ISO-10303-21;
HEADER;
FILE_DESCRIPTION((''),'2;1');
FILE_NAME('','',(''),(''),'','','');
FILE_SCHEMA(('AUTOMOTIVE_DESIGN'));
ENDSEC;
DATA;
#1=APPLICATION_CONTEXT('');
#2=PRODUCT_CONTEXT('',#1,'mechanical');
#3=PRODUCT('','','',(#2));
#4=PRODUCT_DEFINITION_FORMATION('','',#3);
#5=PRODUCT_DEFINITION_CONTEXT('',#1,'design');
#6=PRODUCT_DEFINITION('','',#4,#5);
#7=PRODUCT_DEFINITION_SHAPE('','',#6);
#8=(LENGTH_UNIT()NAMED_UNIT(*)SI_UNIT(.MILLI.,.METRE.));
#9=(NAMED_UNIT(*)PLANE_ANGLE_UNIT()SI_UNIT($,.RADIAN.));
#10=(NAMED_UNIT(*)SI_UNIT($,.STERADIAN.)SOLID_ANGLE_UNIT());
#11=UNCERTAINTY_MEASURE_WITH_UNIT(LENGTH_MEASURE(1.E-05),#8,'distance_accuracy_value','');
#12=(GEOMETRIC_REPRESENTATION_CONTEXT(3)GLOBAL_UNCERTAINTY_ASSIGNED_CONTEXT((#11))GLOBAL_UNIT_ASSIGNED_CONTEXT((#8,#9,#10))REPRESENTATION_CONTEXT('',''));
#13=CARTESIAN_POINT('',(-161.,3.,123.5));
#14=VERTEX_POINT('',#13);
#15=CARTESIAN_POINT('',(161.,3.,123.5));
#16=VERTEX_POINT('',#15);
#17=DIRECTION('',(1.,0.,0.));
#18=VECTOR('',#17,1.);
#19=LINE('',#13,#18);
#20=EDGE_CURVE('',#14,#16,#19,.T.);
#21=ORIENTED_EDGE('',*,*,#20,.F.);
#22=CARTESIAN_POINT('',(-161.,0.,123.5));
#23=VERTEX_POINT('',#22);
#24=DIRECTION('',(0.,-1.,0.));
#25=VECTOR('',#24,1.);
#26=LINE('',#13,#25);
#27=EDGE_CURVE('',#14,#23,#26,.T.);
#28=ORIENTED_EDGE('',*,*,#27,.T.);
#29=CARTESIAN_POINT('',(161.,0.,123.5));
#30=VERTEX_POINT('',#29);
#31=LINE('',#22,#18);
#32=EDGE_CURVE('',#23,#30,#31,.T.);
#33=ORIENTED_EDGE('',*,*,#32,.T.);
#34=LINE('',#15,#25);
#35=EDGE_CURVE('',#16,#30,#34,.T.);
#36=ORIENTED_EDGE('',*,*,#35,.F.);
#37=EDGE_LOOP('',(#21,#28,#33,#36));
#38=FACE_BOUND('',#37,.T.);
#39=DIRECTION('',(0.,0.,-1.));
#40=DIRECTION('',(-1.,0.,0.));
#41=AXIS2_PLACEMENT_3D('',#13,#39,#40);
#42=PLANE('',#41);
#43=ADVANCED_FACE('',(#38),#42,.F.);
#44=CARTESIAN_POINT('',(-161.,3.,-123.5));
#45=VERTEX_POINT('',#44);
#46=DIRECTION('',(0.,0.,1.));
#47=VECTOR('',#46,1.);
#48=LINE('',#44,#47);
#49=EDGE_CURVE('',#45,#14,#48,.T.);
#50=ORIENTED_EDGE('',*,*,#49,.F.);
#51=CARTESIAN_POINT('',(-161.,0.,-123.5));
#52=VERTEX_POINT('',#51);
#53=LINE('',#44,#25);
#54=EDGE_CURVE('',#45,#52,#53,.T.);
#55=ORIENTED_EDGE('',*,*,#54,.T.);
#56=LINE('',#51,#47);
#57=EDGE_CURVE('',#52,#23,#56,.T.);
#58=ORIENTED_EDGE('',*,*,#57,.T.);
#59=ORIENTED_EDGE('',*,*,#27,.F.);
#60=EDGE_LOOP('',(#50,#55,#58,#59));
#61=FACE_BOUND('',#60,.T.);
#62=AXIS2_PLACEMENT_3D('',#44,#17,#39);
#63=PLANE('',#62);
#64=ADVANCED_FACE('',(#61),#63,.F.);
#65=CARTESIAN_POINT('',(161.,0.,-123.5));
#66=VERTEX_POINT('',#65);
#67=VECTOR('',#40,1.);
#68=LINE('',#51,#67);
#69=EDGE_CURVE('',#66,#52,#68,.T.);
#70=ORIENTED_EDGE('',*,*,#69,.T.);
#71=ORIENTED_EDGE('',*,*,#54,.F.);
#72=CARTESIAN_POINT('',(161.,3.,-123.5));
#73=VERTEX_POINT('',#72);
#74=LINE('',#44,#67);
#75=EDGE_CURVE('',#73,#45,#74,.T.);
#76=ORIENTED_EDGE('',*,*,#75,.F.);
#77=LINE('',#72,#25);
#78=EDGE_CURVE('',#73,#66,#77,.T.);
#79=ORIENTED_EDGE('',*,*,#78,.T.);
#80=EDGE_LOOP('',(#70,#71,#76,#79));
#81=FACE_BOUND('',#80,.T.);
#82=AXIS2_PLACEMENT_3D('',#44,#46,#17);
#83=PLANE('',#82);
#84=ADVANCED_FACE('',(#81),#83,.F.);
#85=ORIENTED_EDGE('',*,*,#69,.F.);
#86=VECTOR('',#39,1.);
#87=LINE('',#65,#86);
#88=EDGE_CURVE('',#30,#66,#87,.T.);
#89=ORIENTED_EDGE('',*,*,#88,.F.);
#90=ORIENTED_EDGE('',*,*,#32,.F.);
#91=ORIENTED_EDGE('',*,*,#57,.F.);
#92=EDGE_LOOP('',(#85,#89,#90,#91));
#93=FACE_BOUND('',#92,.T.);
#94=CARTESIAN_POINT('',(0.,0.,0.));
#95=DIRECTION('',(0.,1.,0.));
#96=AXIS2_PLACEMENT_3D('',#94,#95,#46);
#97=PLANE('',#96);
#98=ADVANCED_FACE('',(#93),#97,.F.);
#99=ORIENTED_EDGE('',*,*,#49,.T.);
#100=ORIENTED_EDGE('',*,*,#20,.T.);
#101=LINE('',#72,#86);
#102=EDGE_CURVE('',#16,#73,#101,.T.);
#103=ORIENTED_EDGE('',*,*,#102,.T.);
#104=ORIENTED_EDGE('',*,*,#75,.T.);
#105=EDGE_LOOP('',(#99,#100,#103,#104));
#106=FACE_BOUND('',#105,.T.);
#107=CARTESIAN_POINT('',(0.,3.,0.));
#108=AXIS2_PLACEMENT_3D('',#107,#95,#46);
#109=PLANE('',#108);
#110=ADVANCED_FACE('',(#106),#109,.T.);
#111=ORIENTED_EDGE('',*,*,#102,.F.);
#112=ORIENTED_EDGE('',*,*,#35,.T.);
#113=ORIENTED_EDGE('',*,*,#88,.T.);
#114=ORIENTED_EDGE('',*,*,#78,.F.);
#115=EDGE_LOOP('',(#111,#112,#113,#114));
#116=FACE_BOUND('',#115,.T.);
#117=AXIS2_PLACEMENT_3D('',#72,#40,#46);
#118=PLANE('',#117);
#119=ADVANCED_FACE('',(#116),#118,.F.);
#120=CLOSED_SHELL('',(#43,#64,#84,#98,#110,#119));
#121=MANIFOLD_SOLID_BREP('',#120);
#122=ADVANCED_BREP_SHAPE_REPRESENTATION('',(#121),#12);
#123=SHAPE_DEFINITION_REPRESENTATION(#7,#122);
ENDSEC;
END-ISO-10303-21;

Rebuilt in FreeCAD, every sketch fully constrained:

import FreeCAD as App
import Part
import Sketcher

V = App.Vector
Q = App.Units.Quantity

doc = App.newDocument("Part")
body = doc.addObject("PartDesign::Body", "Body")

# Sketch on XZ plane
sketch1 = body.newObject("Sketcher::SketchObject", "Sketch")
sketch1.AttachmentSupport = (doc.getObject("XZ_Plane"), [""])
sketch1.MapMode = "FlatFace"
sketch1.addGeometry([
    Part.LineSegment(V(-161, -124, 0), V(-161, 124, 0)),
    Part.LineSegment(V(-161, 124, 0), V(161, 124, 0)),
    Part.LineSegment(V(161, 124, 0), V(161, -124, 0)),
    Part.LineSegment(V(161, -124, 0), V(-161, -124, 0)),
], False)
sketch1.addConstraint([
    Sketcher.Constraint("Coincident", 0, 2, 1, 1),
    Sketcher.Constraint("Coincident", 1, 2, 2, 1),
    Sketcher.Constraint("Coincident", 2, 2, 3, 1),
    Sketcher.Constraint("Coincident", 3, 2, 0, 1),
    Sketcher.Constraint("Vertical", 0),
    Sketcher.Constraint("Horizontal", 1),
    Sketcher.Constraint("Vertical", 2),
    Sketcher.Constraint("Horizontal", 3),
    Sketcher.Constraint("Symmetric", 0, 2, 2, 2, -1, 1),
    Sketcher.Constraint("DistanceX", 1, 1, 1, 2, Q("322 mm")),
    Sketcher.Constraint("DistanceY", 0, 1, 0, 2, Q("247 mm")),
])
pad1 = body.newObject("PartDesign::Pad", "Pad")
pad1.Profile = sketch1
pad1.Length = 3
pad1.Reversed = True

doc.recompute()
